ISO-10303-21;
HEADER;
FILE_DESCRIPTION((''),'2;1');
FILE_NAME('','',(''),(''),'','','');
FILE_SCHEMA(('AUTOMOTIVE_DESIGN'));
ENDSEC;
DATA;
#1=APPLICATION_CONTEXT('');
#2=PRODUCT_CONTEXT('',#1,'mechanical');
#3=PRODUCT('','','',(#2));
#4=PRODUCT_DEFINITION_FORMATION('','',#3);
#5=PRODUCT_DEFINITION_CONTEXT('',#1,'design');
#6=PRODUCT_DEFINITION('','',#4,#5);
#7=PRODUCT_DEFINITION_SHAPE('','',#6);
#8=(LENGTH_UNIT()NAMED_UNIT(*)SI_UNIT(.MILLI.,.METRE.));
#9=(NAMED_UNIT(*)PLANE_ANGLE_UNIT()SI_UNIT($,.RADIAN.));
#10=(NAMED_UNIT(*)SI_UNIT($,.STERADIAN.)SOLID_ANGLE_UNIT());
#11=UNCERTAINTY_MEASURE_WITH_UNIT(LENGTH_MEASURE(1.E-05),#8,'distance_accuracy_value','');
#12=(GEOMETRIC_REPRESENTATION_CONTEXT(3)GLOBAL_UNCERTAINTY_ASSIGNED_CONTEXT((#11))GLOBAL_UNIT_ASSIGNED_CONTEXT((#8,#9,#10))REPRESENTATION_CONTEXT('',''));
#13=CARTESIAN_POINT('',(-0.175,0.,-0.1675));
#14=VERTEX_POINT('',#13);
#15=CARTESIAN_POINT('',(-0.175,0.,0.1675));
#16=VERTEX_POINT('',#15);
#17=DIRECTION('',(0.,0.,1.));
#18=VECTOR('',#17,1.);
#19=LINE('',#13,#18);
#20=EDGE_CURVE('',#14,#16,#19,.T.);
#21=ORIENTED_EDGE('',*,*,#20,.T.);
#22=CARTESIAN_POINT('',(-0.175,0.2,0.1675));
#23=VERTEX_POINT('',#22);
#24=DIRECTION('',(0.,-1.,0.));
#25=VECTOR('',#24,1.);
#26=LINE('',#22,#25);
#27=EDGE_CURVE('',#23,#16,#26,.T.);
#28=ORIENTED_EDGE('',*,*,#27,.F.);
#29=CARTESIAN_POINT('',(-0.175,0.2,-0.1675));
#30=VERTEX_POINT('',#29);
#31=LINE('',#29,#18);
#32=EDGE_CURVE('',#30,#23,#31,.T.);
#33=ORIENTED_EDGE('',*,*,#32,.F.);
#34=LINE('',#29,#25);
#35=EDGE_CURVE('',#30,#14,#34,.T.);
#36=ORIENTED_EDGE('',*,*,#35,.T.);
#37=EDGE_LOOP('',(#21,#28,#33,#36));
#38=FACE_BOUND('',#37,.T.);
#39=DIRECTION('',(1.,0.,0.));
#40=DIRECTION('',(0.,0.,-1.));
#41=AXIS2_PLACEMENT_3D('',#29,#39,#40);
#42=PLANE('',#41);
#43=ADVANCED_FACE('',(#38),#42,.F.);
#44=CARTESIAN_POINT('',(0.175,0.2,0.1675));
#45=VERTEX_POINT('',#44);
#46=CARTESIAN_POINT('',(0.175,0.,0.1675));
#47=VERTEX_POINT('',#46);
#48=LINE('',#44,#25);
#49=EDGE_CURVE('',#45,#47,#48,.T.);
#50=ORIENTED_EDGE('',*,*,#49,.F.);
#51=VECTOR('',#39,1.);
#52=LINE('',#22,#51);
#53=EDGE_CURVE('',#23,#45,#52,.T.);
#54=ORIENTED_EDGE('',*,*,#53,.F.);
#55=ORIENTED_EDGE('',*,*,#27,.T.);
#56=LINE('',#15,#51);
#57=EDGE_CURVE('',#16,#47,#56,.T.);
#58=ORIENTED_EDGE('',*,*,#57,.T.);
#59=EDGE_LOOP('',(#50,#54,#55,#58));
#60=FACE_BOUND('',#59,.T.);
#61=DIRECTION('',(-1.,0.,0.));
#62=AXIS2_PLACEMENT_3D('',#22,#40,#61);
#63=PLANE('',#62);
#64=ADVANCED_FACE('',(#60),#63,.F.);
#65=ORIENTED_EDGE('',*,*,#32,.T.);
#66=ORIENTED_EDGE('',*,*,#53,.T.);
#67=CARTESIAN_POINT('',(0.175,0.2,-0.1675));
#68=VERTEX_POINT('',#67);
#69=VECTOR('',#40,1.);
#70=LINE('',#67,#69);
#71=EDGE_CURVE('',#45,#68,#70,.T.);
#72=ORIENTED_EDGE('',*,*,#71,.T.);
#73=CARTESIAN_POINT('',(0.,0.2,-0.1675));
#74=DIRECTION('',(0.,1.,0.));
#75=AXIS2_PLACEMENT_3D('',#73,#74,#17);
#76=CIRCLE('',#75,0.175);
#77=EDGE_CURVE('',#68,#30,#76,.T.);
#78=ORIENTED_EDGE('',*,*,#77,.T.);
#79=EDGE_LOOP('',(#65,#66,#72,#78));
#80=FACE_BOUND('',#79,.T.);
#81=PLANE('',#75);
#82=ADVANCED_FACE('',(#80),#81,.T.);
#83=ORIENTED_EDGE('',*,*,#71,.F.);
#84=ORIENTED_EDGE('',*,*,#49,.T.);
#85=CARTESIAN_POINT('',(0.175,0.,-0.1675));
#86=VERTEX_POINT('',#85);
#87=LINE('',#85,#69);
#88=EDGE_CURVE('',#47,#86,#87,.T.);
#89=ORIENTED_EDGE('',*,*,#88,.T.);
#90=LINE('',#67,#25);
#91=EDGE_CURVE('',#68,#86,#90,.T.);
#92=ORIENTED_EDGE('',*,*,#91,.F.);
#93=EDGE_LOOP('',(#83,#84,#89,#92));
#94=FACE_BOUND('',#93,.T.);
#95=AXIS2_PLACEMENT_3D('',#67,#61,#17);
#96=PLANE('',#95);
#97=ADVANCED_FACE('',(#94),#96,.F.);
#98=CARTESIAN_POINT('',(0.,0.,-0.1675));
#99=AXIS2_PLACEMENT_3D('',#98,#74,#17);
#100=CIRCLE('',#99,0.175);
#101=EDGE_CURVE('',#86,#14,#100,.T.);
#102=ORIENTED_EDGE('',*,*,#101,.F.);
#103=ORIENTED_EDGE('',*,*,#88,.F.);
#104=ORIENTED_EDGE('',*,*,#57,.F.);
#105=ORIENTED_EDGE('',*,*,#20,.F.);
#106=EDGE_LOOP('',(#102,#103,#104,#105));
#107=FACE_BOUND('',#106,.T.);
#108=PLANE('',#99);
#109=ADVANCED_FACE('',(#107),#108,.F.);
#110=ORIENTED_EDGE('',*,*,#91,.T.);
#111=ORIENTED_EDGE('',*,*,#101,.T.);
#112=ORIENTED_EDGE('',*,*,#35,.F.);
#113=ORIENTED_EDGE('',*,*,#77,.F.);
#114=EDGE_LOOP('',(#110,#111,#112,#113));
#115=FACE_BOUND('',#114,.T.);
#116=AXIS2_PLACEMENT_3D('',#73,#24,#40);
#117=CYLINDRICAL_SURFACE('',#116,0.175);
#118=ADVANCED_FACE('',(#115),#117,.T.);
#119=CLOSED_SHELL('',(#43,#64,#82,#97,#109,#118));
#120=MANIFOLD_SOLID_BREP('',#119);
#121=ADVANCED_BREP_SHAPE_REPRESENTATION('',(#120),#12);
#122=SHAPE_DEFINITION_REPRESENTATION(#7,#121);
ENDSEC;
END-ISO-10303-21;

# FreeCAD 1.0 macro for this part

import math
import FreeCAD as App
import Part
import Sketcher
from FreeCAD import Vector
Q = App.Units.Quantity

doc = App.newDocument("Part")
body = doc.addObject("PartDesign::Body", "Body")

sketch1 = body.newObject("Sketcher::SketchObject", "Sketch")
sketch1.AttachmentSupport = (doc.getObject("XZ_Plane"), [""])
sketch1.MapMode = "FlatFace"
sketch1.addGeometry(Part.LineSegment(Vector(-0.17, -0.17, 0), Vector(-0.17, 0.17, 0)), False)
sketch1.addGeometry(Part.LineSegment(Vector(-0.17, 0.17, 0), Vector(0.17, 0.17, 0)), False)
sketch1.addGeometry(Part.LineSegment(Vector(0.17, 0.17, 0), Vector(0.17, -0.17, 0)), False)
sketch1.addGeometry(Part.ArcOfCircle(Part.Circle(Vector(0, -0.17, 0), Vector(0, 0, 1), 0.17), math.radians(180), math.radians(360)), False)
sketch1.addConstraint(Sketcher.Constraint("Coincident", 0, 2, 1, 1))
sketch1.addConstraint(Sketcher.Constraint("Coincident", 1, 2, 2, 1))
sketch1.addConstraint(Sketcher.Constraint("Tangent", 2, 2, 3, 2))
sketch1.addConstraint(Sketcher.Constraint("Tangent", 3, 1, 0, 1))
sketch1.addConstraint(Sketcher.Constraint("Vertical", 0))
sketch1.addConstraint(Sketcher.Constraint("Horizontal", 1))
sketch1.addConstraint(Sketcher.Constraint("Vertical", 2))
sketch1.addConstraint(Sketcher.Constraint("Symmetric", 0, 2, 2, 2, -1, 1))
sketch1.addConstraint(Sketcher.Constraint("Radius", 3, Q("0.175 mm")))
sketch1.addConstraint(Sketcher.Constraint("DistanceY", 0, 1, 0, 2, Q("0.335 mm")))
pad1 = body.newObject("PartDesign::Pad", "Pad")
pad1.Profile = sketch1
pad1.Length = 0.2
pad1.Reversed = True

doc.recompute()
